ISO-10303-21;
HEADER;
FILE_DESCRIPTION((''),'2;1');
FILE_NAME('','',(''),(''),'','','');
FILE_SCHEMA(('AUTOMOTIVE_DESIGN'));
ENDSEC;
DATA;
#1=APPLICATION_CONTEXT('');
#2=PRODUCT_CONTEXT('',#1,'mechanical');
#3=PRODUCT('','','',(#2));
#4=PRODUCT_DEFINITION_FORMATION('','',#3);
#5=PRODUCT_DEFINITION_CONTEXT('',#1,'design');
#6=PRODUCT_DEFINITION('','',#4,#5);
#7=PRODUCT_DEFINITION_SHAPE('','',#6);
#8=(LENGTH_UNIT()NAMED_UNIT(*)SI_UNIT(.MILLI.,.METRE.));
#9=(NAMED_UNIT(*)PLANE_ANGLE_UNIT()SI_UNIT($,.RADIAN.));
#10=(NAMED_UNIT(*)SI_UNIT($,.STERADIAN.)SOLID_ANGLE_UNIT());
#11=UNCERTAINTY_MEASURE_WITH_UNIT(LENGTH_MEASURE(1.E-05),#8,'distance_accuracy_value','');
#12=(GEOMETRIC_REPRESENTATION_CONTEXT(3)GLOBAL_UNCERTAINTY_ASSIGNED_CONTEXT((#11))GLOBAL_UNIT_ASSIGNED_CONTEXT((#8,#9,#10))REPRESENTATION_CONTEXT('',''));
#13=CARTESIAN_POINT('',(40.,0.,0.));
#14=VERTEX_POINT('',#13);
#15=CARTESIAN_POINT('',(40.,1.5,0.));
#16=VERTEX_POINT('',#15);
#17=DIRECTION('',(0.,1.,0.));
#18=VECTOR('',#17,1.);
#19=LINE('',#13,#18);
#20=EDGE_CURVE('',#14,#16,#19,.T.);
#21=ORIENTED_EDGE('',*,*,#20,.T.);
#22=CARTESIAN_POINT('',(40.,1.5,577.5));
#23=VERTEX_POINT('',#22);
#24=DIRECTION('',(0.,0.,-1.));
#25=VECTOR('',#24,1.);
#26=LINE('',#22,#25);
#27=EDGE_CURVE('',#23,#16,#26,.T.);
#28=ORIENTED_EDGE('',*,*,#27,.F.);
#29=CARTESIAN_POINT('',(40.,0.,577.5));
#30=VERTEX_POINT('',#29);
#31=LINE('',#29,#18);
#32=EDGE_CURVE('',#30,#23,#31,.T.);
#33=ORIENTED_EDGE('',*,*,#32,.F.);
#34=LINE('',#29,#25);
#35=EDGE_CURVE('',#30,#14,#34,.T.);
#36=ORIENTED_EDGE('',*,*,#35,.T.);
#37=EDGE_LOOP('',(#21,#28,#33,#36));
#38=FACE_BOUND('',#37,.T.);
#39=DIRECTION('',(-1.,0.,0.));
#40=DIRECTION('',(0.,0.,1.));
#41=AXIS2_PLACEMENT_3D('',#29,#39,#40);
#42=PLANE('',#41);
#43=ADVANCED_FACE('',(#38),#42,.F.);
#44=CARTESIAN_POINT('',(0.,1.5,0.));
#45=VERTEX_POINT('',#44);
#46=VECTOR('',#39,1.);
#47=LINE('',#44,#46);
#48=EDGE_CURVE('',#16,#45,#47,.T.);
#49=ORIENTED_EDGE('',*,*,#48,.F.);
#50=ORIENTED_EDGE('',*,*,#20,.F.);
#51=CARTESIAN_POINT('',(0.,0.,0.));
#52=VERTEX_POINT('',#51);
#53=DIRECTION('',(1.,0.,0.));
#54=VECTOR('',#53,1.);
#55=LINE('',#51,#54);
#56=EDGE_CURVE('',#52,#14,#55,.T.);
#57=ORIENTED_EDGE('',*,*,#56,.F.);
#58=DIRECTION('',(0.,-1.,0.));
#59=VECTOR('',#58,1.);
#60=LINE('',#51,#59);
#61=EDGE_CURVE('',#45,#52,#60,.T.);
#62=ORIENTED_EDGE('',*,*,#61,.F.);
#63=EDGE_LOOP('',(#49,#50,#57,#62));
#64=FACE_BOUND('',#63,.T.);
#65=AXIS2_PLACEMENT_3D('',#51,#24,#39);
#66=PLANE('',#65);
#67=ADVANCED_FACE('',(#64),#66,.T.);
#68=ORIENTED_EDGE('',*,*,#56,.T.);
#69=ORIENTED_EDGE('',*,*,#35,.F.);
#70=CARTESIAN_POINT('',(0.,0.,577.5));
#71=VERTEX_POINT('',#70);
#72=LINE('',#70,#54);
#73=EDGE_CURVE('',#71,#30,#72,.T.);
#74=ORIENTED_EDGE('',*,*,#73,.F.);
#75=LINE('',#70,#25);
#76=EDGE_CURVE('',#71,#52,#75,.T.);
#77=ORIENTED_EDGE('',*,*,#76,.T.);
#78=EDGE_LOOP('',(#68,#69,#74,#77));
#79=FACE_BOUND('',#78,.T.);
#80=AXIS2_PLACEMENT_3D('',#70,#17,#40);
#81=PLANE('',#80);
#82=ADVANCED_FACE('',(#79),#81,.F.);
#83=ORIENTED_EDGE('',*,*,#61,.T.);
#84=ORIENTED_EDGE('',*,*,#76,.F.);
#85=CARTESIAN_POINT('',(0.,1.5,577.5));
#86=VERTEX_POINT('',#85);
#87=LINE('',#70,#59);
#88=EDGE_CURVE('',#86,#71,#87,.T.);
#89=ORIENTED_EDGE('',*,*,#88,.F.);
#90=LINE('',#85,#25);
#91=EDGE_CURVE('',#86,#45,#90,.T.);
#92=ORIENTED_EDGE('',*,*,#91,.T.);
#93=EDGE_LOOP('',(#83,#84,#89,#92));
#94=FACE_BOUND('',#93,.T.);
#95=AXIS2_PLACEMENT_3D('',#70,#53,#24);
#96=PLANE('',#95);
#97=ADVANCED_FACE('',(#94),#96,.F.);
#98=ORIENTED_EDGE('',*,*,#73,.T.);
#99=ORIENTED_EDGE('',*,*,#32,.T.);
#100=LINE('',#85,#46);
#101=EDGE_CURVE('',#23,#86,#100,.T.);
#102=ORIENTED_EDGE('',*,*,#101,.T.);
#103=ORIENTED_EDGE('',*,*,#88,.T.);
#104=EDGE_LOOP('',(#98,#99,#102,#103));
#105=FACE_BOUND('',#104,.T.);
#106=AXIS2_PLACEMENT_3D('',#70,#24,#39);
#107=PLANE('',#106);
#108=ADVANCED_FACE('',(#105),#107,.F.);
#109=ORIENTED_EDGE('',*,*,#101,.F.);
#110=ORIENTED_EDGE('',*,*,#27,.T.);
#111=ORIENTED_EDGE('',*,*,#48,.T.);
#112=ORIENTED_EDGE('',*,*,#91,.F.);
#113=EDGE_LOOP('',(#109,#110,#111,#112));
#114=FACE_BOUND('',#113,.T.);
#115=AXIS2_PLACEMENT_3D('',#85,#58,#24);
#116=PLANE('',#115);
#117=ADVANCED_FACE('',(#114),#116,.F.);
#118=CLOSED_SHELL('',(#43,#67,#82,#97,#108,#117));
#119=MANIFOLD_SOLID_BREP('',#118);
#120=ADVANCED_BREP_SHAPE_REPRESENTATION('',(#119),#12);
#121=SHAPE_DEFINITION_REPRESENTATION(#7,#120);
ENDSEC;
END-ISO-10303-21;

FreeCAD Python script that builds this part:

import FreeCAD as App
import Part
import Sketcher

V = App.Vector


def add_polygon(sketch, points):
    """Adds a closed chain of lines whose ends are joined by coincident constraints."""
    first, n = sketch.GeometryCount, len(points)
    for a, b in zip(points, points[1:] + points[:1]):
        sketch.addGeometry(Part.LineSegment(App.Vector(*a, 0), App.Vector(*b, 0)), False)
    for i in range(n):
        sketch.addConstraint(Sketcher.Constraint("Coincident", first + i, 2, first + (i + 1) % n, 1))

doc = App.newDocument("Part")
body = doc.addObject("PartDesign::Body", "Body")

# Sketch on XY plane
sketch1 = doc.addObject("Sketcher::SketchObject", "Sketch")
body.addObject(sketch1)
sketch1.AttachmentSupport = (doc.XY_Plane, [""])
sketch1.MapMode = "FlatFace"
add_polygon(sketch1, [(0, 1.5), (0, 0), (40, 0), (40, 1.5)])  # lines 0-3
sketch1.addConstraint(Sketcher.Constraint("Vertical", 0))
sketch1.addConstraint(Sketcher.Constraint("Horizontal", 1))
sketch1.addConstraint(Sketcher.Constraint("Vertical", 2))
sketch1.addConstraint(Sketcher.Constraint("Horizontal", 3))
sketch1.addConstraint(Sketcher.Constraint("Coincident", 0, 2, -1, 1))
sketch1.addConstraint(Sketcher.Constraint("DistanceX", 1, 1, 1, 2, 40.0))
sketch1.addConstraint(Sketcher.Constraint("DistanceY", 0, 2, 0, 1, 1.5))
pad1 = doc.addObject("PartDesign::Pad", "Pad")
body.addObject(pad1)
pad1.Profile = sketch1
pad1.Length = 577.5

doc.recompute()
